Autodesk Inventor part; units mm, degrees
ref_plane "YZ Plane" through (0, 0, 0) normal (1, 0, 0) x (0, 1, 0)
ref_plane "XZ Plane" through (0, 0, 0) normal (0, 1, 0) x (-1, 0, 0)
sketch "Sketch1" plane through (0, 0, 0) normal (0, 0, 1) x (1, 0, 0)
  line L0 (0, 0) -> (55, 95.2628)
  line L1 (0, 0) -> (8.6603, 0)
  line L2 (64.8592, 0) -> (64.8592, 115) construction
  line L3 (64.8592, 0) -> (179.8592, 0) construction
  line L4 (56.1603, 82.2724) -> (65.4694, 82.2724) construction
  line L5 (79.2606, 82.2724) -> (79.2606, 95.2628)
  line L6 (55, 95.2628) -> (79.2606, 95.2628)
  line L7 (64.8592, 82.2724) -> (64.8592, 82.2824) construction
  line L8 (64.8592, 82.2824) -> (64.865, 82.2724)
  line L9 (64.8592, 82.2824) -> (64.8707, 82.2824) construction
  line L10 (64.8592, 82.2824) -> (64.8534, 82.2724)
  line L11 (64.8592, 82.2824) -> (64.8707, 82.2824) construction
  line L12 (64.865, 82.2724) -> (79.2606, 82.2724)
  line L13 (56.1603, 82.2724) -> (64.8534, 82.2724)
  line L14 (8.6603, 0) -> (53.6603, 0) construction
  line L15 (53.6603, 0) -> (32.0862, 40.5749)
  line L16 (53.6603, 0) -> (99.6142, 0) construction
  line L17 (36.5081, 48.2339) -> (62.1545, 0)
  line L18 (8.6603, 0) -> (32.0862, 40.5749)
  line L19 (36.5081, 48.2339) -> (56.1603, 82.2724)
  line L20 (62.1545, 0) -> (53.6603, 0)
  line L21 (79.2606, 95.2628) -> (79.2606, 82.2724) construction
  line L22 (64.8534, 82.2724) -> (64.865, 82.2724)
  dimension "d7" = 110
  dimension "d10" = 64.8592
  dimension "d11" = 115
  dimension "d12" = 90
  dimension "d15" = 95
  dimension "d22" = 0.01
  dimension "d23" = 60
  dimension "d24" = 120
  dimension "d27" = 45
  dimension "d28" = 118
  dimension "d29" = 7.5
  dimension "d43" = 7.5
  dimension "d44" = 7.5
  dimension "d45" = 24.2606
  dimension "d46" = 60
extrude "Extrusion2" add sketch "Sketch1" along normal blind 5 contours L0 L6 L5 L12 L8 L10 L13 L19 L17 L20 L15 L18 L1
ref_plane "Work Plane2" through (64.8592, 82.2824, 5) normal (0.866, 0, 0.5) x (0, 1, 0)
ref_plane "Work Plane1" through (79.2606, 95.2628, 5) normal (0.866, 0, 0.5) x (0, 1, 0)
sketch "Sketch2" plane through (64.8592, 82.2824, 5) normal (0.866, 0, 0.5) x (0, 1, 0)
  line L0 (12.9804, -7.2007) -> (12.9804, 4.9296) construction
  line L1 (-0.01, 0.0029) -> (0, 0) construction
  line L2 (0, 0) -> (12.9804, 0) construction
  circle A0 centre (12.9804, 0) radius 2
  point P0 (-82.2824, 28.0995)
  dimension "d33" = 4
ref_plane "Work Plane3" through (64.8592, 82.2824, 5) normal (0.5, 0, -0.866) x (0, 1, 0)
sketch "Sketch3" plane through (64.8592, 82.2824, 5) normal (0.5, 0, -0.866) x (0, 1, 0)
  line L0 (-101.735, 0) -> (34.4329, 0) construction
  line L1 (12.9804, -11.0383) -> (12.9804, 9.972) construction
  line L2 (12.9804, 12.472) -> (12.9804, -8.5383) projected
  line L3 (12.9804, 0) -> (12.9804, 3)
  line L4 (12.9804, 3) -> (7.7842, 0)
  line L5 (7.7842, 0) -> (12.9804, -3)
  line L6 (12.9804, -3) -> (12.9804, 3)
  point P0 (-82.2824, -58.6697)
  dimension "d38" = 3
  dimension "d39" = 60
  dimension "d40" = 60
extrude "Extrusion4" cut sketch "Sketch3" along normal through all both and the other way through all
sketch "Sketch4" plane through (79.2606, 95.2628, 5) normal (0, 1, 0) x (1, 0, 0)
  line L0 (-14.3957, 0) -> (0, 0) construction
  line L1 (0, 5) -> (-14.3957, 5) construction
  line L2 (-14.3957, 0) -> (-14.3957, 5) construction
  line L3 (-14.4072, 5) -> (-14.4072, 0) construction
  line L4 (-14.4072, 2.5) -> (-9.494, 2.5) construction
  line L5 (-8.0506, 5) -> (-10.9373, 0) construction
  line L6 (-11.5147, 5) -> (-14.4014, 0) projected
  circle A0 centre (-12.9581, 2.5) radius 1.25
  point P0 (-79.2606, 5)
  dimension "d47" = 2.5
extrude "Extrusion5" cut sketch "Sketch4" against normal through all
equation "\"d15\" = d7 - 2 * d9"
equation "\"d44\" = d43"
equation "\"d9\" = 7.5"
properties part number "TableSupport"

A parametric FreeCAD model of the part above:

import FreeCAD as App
import Part
import Sketcher

V = App.Vector
Q = App.Units.Quantity


def add_polygon(sketch, points):
    """Adds a closed chain of lines whose ends are joined by coincident constraints."""
    first, n = sketch.GeometryCount, len(points)
    for a, b in zip(points, points[1:] + points[:1]):
        sketch.addGeometry(Part.LineSegment(App.Vector(*a, 0), App.Vector(*b, 0)), False)
    for i in range(n):
        sketch.addConstraint(Sketcher.Constraint("Coincident", first + i, 2, first + (i + 1) % n, 1))

doc = App.newDocument("Part")
params = doc.addObject("Spreadsheet::Sheet", "Params")
for row, (alias, value) in enumerate([
    ("sketch1_length", "110 mm"),
    ("pad1_length", "5 mm"),
    ("sketch3_diameter", "2.5 mm"),
], start=1):
    params.set(f"A{row}", alias)
    params.set(f"B{row}", "=" + value)
    params.setAlias(f"B{row}", alias)

body = doc.addObject("PartDesign::Body", "Body")

# Sketch on XY plane
sketch1 = body.newObject("Sketcher::SketchObject", "Sketch")
sketch1.AttachmentSupport = (doc.getObject("XY_Plane"), [""])
sketch1.MapMode = "FlatFace"
add_polygon(sketch1, [(55, 95.263), (0, 0), (8.66, 0), (32.086, 40.575), (53.66, 0), (62.154, 0), (36.508, 48.234), (56.16, 82.272), (64.853, 82.272), (64.859, 82.282), (64.865, 82.272), (79.261, 82.272), (79.261, 95.263)])  # lines 0-12
sketch1.addConstraint([
    Sketcher.Constraint("Horizontal", 1),
    Sketcher.Constraint("Horizontal", 4),
    Sketcher.Constraint("Horizontal", 7),
    Sketcher.Constraint("Horizontal", 10),
    Sketcher.Constraint("Vertical", 11),
    Sketcher.Constraint("Horizontal", 12),
    Sketcher.Constraint("Coincident", 0, 2, -1, 1),
    Sketcher.Constraint("PointOnObject", 3, 2, -1),
    Sketcher.Constraint("Parallel", 0, 2),
    Sketcher.Constraint("Parallel", 3, 5),
    Sketcher.Constraint("Parallel", 2, 6),
    Sketcher.Constraint("Horizontal", 7, 2, 9, 2),
    Sketcher.Constraint("Equal", 8, 9),
    Sketcher.Constraint("Angle", 0, Q("-120 deg")),
    Sketcher.Constraint("Angle", 5, Q("118 deg")),
    Sketcher.Constraint("Distance", 0, 110.0),
    Sketcher.Constraint("DistanceX", 1, 2, 3, 2, 45.0),
    Sketcher.Constraint("DistanceY", 7, 2, 8, 2, 0.01),
    Sketcher.Constraint("DistanceX", 12, 2, 12, 1, 24.2606),
    Sketcher.Constraint("DistanceX", -1, 1, 8, 2, 64.8592),
    Sketcher.Constraint("DistanceX", 3, 2, 6, 2, 2.5),
    Sketcher.Constraint("DistanceX", 7, 1, 7, 2, 8.693),
    Sketcher.Constraint("DistanceX", 1, 1, 1, 2, 8.6603),
    Sketcher.Constraint("DistanceX", 4, 1, 4, 2, 8.4942),
    Sketcher.Constraint("DistanceY", 11, 1, 11, 2, 12.9904),
])
sketch1.setExpression("Constraints[28]", "Params.sketch1_length")
pad1 = body.newObject("PartDesign::Pad", "Pad")
pad1.Profile = sketch1
pad1.setExpression("Length", "Params.pad1_length")

# Sketch on an angled plane
sketch2 = body.newObject("Sketcher::SketchObject", "Sketch001")
sketch2.Placement = App.Placement(V(64.8592, 82.2824, 5), App.Rotation(V(0, 1, 0), V(0.866025404, 0, 0.5), V(0.5, 0, -0.866025404), "ZXY"))
add_polygon(sketch2, [(13, -3), (13, 3), (8, 0)])  # lines 0-2
sketch2.addConstraint([
    Sketcher.Constraint("Vertical", 0),
    Sketcher.Constraint("PointOnObject", 1, 2, -1),
    Sketcher.Constraint("Equal", 1, 2),
    Sketcher.Constraint("DistanceY", -1, 1, 0, 2, 3.0),
    Sketcher.Constraint("Angle", 1, Q("-150.0002 deg")),
    Sketcher.Constraint("DistanceX", -1, 1, 0, 2, 12.9804),
])
pocket1 = body.newObject("PartDesign::Pocket", "Pocket")
pocket1.Profile = sketch2
pocket1.Type = "ThroughAll"
pocket1.Midplane = True

# Sketch on XZ plane
sketch3 = body.newObject("Sketcher::SketchObject", "Sketch002")
sketch3.AttachmentSupport = (doc.getObject("XZ_Plane"), [""])
sketch3.MapMode = "FlatFace"
sketch3.AttachmentOffset = App.Placement(V(0, 0, -95.2628), App.Rotation())
sketch3.addGeometry(Part.Circle(V(66.3, 2.5, 0), V(0, 0, 1), 1.2), False)
sketch3.addConstraint([
    Sketcher.Constraint("Diameter", 0, 2.5),
    Sketcher.Constraint("DistanceY", -1, 1, 0, 3, 2.5),
    Sketcher.Constraint("DistanceX", -1, 1, 0, 3, 66.3025),
])
sketch3.setExpression("Constraints[0]", "Params.sketch3_diameter")
pocket2 = body.newObject("PartDesign::Pocket", "Pocket001")
pocket2.Profile = sketch3
pocket2.Type = "ThroughAll"
pocket2.Reversed = True

doc.recompute()
